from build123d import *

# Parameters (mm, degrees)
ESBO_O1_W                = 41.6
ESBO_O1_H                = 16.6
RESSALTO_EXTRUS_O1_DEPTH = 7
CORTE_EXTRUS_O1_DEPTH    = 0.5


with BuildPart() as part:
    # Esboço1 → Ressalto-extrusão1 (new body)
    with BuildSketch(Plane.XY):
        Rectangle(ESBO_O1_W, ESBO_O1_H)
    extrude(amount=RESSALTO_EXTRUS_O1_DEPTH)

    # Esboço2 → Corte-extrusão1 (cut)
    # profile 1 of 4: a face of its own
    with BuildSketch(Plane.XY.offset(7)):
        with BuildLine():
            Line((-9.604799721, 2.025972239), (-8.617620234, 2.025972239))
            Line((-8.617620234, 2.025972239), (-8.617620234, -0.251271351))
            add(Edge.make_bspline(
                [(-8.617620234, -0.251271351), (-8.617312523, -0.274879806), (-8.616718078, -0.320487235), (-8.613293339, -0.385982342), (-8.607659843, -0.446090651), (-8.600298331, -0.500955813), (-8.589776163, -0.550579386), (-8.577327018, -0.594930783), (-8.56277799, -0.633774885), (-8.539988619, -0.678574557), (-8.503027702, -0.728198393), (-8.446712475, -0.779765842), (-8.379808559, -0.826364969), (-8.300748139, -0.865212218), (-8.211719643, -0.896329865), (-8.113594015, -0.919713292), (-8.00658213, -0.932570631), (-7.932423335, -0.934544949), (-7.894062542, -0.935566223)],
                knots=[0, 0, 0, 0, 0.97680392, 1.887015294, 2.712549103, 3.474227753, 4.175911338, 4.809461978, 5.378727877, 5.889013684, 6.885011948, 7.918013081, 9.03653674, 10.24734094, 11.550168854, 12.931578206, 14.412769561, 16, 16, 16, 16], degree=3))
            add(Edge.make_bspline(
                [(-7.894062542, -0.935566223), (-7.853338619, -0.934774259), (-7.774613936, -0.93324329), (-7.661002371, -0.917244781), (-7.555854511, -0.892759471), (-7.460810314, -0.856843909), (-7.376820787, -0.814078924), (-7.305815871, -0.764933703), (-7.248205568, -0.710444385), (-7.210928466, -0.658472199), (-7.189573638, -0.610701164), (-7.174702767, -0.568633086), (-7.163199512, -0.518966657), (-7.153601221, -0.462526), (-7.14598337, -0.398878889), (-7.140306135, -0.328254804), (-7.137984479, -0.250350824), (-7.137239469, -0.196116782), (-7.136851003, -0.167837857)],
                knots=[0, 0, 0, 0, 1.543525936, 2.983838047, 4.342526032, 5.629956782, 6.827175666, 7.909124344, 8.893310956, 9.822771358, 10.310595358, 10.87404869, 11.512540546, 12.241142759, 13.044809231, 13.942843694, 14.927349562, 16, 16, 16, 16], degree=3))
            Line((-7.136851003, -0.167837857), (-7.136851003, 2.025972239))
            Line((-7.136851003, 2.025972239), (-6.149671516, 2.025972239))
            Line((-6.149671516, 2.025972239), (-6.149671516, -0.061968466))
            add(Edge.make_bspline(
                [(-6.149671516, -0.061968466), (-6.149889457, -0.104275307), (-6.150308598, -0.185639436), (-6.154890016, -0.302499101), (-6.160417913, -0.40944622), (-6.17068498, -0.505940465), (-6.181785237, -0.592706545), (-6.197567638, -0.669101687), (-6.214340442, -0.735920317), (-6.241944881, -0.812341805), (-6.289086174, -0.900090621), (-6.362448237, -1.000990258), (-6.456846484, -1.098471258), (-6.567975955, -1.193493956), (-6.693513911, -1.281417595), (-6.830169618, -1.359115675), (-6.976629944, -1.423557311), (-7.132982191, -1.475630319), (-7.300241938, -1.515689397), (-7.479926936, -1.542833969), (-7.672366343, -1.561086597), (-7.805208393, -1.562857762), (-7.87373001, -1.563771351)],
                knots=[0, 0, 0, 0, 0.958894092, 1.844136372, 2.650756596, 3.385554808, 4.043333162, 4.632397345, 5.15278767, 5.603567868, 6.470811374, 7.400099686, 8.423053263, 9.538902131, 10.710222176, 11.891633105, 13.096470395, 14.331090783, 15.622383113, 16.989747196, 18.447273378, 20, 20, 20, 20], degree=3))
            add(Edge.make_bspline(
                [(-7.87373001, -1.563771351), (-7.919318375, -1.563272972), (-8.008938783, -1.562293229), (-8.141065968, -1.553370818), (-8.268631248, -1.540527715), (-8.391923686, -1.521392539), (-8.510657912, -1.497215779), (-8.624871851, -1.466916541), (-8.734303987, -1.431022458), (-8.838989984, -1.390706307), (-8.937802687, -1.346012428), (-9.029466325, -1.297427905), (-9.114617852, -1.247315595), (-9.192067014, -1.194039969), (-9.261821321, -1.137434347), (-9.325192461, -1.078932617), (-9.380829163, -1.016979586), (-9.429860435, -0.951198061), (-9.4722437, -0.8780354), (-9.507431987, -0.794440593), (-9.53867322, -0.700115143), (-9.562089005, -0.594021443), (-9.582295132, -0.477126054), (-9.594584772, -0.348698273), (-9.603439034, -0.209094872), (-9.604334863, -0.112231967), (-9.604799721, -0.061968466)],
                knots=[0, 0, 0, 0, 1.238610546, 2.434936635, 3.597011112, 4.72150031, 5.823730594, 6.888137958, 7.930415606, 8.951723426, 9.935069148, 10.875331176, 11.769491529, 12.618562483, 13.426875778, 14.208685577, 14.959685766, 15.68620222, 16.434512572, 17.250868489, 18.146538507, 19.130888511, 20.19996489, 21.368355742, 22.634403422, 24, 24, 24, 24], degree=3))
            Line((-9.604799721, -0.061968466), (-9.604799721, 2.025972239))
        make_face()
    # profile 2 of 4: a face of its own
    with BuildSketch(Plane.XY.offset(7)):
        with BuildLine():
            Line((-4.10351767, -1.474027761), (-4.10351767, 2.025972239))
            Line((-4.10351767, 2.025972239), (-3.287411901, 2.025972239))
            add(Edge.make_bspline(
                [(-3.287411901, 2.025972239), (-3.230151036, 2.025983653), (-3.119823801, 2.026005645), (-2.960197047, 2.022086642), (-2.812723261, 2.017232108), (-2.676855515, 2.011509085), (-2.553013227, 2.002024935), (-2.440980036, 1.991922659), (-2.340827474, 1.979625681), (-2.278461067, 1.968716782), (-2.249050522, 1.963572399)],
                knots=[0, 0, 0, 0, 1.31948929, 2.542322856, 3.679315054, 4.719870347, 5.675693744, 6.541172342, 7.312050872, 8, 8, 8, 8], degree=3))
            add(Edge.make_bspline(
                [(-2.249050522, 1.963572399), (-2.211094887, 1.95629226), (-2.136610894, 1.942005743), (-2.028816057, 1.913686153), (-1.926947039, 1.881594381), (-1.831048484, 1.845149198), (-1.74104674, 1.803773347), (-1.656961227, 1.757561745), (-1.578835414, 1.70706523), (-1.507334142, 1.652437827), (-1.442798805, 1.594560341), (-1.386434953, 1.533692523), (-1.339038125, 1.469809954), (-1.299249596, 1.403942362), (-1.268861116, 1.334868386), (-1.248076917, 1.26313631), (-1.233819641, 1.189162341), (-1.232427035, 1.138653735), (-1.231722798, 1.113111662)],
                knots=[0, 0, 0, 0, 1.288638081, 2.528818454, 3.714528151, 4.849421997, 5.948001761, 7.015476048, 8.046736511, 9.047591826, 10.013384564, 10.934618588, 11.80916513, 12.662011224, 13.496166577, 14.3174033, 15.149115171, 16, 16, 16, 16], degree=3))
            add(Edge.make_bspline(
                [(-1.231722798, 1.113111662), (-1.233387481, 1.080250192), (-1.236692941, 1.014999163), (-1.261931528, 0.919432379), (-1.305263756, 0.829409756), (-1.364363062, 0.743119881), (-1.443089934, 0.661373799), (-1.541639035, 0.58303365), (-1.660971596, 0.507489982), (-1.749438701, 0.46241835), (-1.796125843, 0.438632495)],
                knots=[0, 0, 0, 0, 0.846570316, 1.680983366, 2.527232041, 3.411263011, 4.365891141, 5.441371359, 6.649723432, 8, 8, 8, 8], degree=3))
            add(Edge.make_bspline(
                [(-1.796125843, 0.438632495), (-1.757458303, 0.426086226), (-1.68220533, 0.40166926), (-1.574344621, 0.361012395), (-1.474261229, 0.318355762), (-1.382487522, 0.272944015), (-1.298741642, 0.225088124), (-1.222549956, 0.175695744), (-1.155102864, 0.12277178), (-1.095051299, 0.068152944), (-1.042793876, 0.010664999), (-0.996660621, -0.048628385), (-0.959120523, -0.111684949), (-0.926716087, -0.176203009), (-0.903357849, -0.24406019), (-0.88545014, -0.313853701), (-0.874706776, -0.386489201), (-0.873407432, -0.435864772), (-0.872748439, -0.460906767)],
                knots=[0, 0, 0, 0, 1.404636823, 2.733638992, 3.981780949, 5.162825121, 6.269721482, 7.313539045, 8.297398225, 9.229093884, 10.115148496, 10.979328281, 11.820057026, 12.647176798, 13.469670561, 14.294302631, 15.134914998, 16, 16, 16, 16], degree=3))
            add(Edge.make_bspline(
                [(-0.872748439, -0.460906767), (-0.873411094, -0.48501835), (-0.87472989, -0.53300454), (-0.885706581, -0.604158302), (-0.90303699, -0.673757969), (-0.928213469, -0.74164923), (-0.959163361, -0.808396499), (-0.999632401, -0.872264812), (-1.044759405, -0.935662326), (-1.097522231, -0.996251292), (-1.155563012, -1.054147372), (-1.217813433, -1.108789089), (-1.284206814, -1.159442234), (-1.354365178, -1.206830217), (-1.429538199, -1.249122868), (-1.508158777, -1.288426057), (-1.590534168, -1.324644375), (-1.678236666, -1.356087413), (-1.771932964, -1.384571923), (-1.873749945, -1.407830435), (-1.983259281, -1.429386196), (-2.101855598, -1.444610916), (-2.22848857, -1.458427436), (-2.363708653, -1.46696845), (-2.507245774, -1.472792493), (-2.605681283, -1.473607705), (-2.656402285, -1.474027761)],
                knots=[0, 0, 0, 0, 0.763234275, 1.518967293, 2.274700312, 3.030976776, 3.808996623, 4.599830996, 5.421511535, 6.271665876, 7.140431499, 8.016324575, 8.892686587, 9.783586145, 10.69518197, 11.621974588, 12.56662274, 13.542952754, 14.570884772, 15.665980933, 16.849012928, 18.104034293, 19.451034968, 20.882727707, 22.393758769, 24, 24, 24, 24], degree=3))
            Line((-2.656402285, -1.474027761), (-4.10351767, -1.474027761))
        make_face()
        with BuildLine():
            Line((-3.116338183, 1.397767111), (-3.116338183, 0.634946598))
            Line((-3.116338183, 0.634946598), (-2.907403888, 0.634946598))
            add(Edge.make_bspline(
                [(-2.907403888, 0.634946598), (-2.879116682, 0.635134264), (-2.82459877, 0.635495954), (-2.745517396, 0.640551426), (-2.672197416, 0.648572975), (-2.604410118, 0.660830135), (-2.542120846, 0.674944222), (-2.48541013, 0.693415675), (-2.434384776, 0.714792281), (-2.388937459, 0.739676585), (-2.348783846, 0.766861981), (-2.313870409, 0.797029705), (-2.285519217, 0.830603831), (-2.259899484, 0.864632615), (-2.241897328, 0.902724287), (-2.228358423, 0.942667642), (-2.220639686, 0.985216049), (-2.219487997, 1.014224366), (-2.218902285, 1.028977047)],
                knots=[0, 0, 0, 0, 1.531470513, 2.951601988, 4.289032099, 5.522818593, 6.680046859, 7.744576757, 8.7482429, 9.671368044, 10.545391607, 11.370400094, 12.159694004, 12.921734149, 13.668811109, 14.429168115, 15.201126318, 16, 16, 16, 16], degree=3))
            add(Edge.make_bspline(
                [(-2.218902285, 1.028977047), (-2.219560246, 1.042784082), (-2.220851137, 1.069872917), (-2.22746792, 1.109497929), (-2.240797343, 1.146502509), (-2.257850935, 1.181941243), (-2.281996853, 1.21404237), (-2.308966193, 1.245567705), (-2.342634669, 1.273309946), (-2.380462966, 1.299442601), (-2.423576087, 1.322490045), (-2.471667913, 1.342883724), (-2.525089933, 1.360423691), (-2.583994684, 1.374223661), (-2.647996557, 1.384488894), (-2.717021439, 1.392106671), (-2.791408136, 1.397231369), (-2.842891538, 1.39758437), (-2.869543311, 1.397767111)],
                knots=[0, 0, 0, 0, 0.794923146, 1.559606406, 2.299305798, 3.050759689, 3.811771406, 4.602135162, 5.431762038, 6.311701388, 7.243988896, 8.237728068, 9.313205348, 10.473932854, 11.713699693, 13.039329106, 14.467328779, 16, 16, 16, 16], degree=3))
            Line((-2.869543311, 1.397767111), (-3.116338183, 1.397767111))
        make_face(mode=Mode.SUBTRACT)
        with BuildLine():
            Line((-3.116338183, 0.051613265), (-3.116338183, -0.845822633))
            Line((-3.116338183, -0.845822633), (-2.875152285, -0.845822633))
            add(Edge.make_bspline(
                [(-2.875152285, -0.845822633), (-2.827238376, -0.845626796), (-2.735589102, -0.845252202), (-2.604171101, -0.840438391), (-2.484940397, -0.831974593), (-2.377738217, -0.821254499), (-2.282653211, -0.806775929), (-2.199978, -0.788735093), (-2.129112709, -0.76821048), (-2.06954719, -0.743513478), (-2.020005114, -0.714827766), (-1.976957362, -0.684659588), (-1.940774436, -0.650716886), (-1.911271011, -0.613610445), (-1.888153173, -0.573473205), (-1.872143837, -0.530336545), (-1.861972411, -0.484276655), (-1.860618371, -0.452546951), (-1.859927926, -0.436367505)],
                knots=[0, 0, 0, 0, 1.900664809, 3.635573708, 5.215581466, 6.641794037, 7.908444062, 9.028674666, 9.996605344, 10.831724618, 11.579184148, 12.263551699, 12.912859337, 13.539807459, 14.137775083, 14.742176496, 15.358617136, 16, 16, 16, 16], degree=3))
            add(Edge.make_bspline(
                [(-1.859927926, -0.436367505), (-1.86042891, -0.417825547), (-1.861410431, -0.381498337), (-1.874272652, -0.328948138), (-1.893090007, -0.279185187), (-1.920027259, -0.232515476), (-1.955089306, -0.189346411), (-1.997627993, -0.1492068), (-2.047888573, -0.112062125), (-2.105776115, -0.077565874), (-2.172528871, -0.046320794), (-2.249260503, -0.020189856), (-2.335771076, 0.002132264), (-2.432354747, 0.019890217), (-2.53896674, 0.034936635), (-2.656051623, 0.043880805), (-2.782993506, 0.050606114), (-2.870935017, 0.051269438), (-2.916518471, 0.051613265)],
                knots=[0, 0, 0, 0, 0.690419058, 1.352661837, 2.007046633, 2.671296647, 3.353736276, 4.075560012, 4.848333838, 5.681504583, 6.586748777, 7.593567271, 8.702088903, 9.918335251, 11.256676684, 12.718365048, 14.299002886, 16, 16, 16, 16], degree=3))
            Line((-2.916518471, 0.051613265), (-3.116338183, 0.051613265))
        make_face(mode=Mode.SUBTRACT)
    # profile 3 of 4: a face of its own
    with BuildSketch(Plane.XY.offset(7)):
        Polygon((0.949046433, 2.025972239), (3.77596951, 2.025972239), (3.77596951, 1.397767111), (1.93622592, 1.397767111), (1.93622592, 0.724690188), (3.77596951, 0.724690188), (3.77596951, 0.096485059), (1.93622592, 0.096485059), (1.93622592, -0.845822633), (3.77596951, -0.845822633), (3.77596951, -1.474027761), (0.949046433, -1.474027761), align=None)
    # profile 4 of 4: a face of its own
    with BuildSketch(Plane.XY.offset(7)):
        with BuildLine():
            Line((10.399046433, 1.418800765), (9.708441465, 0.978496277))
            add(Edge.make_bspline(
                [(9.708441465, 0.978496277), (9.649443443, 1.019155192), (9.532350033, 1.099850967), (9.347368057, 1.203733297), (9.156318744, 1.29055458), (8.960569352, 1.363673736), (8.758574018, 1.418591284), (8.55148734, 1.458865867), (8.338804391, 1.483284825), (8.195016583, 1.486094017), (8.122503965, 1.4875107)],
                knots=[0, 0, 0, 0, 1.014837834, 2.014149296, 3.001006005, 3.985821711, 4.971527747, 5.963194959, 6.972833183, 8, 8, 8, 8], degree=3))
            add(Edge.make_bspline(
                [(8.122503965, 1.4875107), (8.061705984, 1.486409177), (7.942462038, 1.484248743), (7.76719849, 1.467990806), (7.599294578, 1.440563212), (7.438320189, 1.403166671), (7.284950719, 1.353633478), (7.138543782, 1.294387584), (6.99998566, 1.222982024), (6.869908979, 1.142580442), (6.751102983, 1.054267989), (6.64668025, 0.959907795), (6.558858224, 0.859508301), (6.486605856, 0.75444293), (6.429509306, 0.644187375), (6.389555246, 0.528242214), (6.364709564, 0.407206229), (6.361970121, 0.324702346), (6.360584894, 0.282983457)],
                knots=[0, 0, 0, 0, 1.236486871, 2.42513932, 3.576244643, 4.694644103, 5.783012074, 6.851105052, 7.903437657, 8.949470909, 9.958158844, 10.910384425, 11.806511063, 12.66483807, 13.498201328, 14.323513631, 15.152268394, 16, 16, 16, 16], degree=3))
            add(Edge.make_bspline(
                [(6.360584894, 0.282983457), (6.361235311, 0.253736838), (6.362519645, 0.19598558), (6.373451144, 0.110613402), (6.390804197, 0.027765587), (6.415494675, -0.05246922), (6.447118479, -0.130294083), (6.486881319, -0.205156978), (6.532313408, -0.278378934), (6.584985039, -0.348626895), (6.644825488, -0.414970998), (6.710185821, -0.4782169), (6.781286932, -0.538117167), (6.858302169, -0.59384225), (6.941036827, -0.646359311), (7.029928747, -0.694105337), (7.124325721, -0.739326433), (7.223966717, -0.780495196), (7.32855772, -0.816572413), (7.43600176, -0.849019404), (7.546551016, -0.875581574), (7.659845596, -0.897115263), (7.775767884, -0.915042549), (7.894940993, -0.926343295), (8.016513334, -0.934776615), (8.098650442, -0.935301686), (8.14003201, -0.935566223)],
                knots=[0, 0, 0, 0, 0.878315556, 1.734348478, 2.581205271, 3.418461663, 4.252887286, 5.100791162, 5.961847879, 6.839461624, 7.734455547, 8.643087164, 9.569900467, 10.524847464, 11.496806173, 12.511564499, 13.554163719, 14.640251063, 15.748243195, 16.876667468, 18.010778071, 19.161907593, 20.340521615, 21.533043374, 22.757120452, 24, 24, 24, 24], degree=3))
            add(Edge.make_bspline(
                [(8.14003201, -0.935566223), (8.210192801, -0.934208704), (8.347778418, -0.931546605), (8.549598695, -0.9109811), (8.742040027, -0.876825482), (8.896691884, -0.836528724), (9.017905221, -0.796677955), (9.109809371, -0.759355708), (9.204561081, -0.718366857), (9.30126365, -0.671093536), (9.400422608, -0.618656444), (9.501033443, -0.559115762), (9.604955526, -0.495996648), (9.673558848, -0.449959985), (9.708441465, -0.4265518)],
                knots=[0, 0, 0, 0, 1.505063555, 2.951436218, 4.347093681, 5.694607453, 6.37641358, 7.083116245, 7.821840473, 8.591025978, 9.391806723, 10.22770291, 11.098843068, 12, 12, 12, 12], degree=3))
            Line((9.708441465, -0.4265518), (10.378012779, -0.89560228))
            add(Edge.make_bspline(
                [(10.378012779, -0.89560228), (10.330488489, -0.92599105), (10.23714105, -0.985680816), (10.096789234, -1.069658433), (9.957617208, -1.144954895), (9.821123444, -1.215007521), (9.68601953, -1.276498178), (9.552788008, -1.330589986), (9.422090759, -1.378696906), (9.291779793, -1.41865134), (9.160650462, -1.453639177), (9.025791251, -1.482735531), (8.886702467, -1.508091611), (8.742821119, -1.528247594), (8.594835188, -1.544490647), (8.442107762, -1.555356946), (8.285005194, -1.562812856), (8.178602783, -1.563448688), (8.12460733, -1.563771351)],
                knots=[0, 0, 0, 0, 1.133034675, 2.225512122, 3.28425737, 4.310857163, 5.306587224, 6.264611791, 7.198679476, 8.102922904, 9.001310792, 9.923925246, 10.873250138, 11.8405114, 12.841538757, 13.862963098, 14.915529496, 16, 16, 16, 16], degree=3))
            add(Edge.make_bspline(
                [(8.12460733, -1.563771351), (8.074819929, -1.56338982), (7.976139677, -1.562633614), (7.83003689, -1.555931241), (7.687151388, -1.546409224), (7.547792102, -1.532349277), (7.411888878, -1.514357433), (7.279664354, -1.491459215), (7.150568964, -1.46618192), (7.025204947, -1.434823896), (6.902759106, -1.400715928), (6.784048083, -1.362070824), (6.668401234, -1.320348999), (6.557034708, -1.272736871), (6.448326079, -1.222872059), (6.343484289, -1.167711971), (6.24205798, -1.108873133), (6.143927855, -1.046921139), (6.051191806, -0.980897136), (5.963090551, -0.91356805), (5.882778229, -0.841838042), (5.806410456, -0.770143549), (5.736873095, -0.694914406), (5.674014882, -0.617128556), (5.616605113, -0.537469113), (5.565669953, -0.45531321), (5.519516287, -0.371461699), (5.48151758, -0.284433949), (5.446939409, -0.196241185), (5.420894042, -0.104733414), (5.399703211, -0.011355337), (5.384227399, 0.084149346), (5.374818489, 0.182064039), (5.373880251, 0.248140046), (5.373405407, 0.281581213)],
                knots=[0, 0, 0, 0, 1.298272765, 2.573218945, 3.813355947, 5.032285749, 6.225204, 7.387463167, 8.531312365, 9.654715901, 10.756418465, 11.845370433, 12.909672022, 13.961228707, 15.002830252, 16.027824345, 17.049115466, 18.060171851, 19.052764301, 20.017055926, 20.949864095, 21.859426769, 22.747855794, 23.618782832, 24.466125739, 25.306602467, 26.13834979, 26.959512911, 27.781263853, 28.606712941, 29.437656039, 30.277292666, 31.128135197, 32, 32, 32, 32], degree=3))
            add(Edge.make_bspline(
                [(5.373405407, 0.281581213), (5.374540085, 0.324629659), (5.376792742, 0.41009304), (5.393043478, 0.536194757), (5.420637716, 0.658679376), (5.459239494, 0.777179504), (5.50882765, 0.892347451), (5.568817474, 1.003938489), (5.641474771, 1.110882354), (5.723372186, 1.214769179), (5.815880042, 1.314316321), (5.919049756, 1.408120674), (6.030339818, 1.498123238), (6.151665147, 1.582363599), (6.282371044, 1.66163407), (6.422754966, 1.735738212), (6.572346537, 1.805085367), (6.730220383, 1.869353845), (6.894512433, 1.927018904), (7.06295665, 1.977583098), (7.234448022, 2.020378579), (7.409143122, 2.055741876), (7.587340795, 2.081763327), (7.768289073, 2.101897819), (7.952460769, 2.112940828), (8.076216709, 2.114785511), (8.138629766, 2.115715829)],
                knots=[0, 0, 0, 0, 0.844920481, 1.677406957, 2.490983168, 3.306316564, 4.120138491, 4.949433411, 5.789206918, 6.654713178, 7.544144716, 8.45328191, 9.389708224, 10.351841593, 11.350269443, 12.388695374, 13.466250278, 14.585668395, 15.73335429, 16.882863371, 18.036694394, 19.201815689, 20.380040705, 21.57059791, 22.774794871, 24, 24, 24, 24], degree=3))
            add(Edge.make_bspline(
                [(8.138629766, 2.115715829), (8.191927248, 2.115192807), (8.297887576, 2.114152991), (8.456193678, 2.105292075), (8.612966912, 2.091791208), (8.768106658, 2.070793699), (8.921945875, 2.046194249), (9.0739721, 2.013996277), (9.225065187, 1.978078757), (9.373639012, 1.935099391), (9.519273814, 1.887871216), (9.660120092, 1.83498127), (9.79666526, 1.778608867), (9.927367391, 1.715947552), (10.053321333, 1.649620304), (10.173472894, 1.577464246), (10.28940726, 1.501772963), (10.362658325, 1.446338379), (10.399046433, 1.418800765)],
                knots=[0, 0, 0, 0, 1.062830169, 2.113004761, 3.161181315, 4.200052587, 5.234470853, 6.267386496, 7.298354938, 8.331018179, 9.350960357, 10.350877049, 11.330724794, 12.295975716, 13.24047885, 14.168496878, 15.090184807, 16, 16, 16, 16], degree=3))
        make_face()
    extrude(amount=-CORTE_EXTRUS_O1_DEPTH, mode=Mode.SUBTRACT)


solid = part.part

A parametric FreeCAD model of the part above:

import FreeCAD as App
import Part
import Sketcher

V = App.Vector
Q = App.Units.Quantity


def add_polygon(sketch, points):
    """Adds a closed chain of lines whose ends are joined by coincident constraints."""
    first, n = sketch.GeometryCount, len(points)
    for a, b in zip(points, points[1:] + points[:1]):
        sketch.addGeometry(Part.LineSegment(App.Vector(*a, 0), App.Vector(*b, 0)), False)
    for i in range(n):
        sketch.addConstraint(Sketcher.Constraint("Coincident", first + i, 2, first + (i + 1) % n, 1))

doc = App.newDocument("Part")
params = doc.addObject("Spreadsheet::Sheet", "Params")
for row, (alias, value) in enumerate([
    ("sketch1_width", "41.6 mm"),
    ("sketch1_height", "16.6 mm"),
    ("pad1_length", "7 mm"),
    ("sketch2_height", "3.5 mm"),
    ("pocket1_length", "0.5 mm"),
], start=1):
    params.set(f"A{row}", alias)
    params.set(f"B{row}", "=" + value)
    params.setAlias(f"B{row}", alias)

body = doc.addObject("PartDesign::Body", "Body")

sketch1 = doc.addObject("Sketcher::SketchObject", "Sketch")
body.addObject(sketch1)
sketch1.AttachmentSupport = (doc.XY_Plane, [""])
sketch1.MapMode = "FlatFace"
add_polygon(sketch1, [(-21, 8), (-21, -8), (21, -8), (21, 8)])
sketch1.addConstraint(Sketcher.Constraint("Vertical", 0))
sketch1.addConstraint(Sketcher.Constraint("Horizontal", 1))
sketch1.addConstraint(Sketcher.Constraint("Vertical", 2))
sketch1.addConstraint(Sketcher.Constraint("Horizontal", 3))
sketch1.addConstraint(Sketcher.Constraint("Symmetric", 0, 2, 2, 2, -1, 1))
sketch1.addConstraint(Sketcher.Constraint("DistanceX", 1, 1, 1, 2, Q("41.6 mm")))
sketch1.addConstraint(Sketcher.Constraint("DistanceY", 0, 2, 0, 1, Q("16.6 mm")))
sketch1.setExpression("Constraints[9]", "Params.sketch1_width")
sketch1.setExpression("Constraints[10]", "Params.sketch1_height")
pad1 = doc.addObject("PartDesign::Pad", "Pad")
body.addObject(pad1)
pad1.Profile = sketch1
pad1.setExpression("Length", "Params.pad1_length")

sketch2 = doc.addObject("Sketcher::SketchObject", "Sketch001")
body.addObject(sketch2)
sketch2.AttachmentSupport = (doc.XY_Plane, [""])
sketch2.MapMode = "FlatFace"
sketch2.AttachmentOffset = App.Placement(V(0, 0, 7), App.Rotation())
sketch2.addGeometry(Part.LineSegment(V(-8.61762, 2.025972, 0), V(-9.6048, 2.025972, 0)), False)
sketch2.addGeometry(Part.LineSegment(V(-9.6048, 2.025972, 0), V(-9.6048, -0.061968, 0)), False)
sketch2.addGeometry(Part.BSplineCurve([V(-7.87373, -1.563771, 0), V(-7.919318, -1.563273, 0), V(-8.008939, -1.562293, 0), V(-8.141066, -1.553371, 0), V(-8.268631, -1.540528, 0), V(-8.391924, -1.521393, 0), V(-8.510658, -1.497216, 0), V(-8.624872, -1.466917, 0), V(-8.734304, -1.431022, 0), V(-8.83899, -1.390706, 0), V(-8.937803, -1.346012, 0), V(-9.029466, -1.297428, 0), V(-9.114618, -1.247316, 0), V(-9.192067, -1.19404, 0), V(-9.261821, -1.137434, 0), V(-9.325192, -1.078933, 0), V(-9.380829, -1.01698, 0), V(-9.42986, -0.951198, 0), V(-9.472244, -0.878035, 0), V(-9.507432, -0.794441, 0), V(-9.538673, -0.700115, 0), V(-9.562089, -0.594021, 0), V(-9.582295, -0.477126, 0), V(-9.594585, -0.348698, 0), V(-9.603439, -0.209095, 0), V(-9.604335, -0.112232, 0), V(-9.6048, -0.061968, 0)], [4, 1, 1, 1, 1, 1, 1, 1, 1, 1, 1, 1, 1, 1, 1, 1, 1, 1, 1, 1, 1, 1, 1, 1, 4], [0, 1.238610546, 2.434936635, 3.597011112, 4.72150031, 5.823730594, 6.888137958, 7.930415606, 8.951723426, 9.935069148, 10.875331176, 11.769491529, 12.618562483, 13.426875778, 14.208685577, 14.959685766, 15.68620222, 16.434512572, 17.250868489, 18.146538507, 19.130888511, 20.19996489, 21.368355742, 22.634403422, 24], False, 3, [1, 1, 1, 1, 1, 1, 1, 1, 1, 1, 1, 1, 1, 1, 1, 1, 1, 1, 1, 1, 1, 1, 1, 1, 1, 1, 1], False), False)
sketch2.addGeometry(Part.BSplineCurve([V(-6.149672, -0.061968, 0), V(-6.149889, -0.104275, 0), V(-6.150309, -0.185639, 0), V(-6.15489, -0.302499, 0), V(-6.160418, -0.409446, 0), V(-6.170685, -0.50594, 0), V(-6.181785, -0.592707, 0), V(-6.197568, -0.669102, 0), V(-6.21434, -0.73592, 0), V(-6.241945, -0.812342, 0), V(-6.289086, -0.900091, 0), V(-6.362448, -1.00099, 0), V(-6.456846, -1.098471, 0), V(-6.567976, -1.193494, 0), V(-6.693514, -1.281418, 0), V(-6.83017, -1.359116, 0), V(-6.97663, -1.423557, 0), V(-7.132982, -1.47563, 0), V(-7.300242, -1.515689, 0), V(-7.479927, -1.542834, 0), V(-7.672366, -1.561087, 0), V(-7.805208, -1.562858, 0), V(-7.87373, -1.563771, 0)], [4, 1, 1, 1, 1, 1, 1, 1, 1, 1, 1, 1, 1, 1, 1, 1, 1, 1, 1, 1, 4], [0, 0.958894092, 1.844136372, 2.650756596, 3.385554808, 4.043333162, 4.632397345, 5.15278767, 5.603567868, 6.470811374, 7.400099686, 8.423053263, 9.538902131, 10.710222176, 11.891633105, 13.096470395, 14.331090783, 15.622383113, 16.989747196, 18.447273378, 20], False, 3, [1, 1, 1, 1, 1, 1, 1, 1, 1, 1, 1, 1, 1, 1, 1, 1, 1, 1, 1, 1, 1, 1, 1], False), False)
sketch2.addGeometry(Part.LineSegment(V(-6.149672, -0.061968, 0), V(-6.149672, 2.025972, 0)), False)
sketch2.addGeometry(Part.LineSegment(V(-6.149672, 2.025972, 0), V(-7.136851, 2.025972, 0)), False)
sketch2.addGeometry(Part.LineSegment(V(-7.136851, 2.025972, 0), V(-7.136851, -0.167838, 0)), False)
sketch2.addGeometry(Part.BSplineCurve([V(-7.894063, -0.935566, 0), V(-7.853339, -0.934774, 0), V(-7.774614, -0.933243, 0), V(-7.661002, -0.917245, 0), V(-7.555855, -0.892759, 0), V(-7.46081, -0.856844, 0), V(-7.376821, -0.814079, 0), V(-7.305816, -0.764934, 0), V(-7.248206, -0.710444, 0), V(-7.210928, -0.658472, 0), V(-7.189574, -0.610701, 0), V(-7.174703, -0.568633, 0), V(-7.1632, -0.518967, 0), V(-7.153601, -0.462526, 0), V(-7.145983, -0.398879, 0), V(-7.140306, -0.328255, 0), V(-7.137984, -0.250351, 0), V(-7.137239, -0.196117, 0), V(-7.136851, -0.167838, 0)], [4, 1, 1, 1, 1, 1, 1, 1, 1, 1, 1, 1, 1, 1, 1, 1, 4], [0, 1.543525936, 2.983838047, 4.342526032, 5.629956782, 6.827175666, 7.909124344, 8.893310956, 9.822771358, 10.310595358, 10.87404869, 11.512540546, 12.241142759, 13.044809231, 13.942843694, 14.927349562, 16], False, 3, [1, 1, 1, 1, 1, 1, 1, 1, 1, 1, 1, 1, 1, 1, 1, 1, 1, 1, 1], False), False)
sketch2.addGeometry(Part.BSplineCurve([V(-8.61762, -0.251271, 0), V(-8.617313, -0.27488, 0), V(-8.616718, -0.320487, 0), V(-8.613293, -0.385982, 0), V(-8.60766, -0.446091, 0), V(-8.600298, -0.500956, 0), V(-8.589776, -0.550579, 0), V(-8.577327, -0.594931, 0), V(-8.562778, -0.633775, 0), V(-8.539989, -0.678575, 0), V(-8.503028, -0.728198, 0), V(-8.446712, -0.779766, 0), V(-8.379809, -0.826365, 0), V(-8.300748, -0.865212, 0), V(-8.21172, -0.89633, 0), V(-8.113594, -0.919713, 0), V(-8.006582, -0.932571, 0), V(-7.932423, -0.934545, 0), V(-7.894063, -0.935566, 0)], [4, 1, 1, 1, 1, 1, 1, 1, 1, 1, 1, 1, 1, 1, 1, 1, 4], [0, 0.97680392, 1.887015294, 2.712549103, 3.474227753, 4.175911338, 4.809461978, 5.378727877, 5.889013684, 6.885011948, 7.918013081, 9.03653674, 10.24734094, 11.550168854, 12.931578206, 14.412769561, 16], False, 3, [1, 1, 1, 1, 1, 1, 1, 1, 1, 1, 1, 1, 1, 1, 1, 1, 1, 1, 1], False), False)
sketch2.addGeometry(Part.LineSegment(V(-8.61762, -0.251271, 0), V(-8.61762, 2.025972, 0)), False)
sketch2.addGeometry(Part.LineSegment(V(-4.103518, 2.025972, 0), V(-4.103518, -1.474028, 0)), False)
sketch2.addGeometry(Part.LineSegment(V(-4.103518, -1.474028, 0), V(-2.656402, -1.474028, 0)), False)
sketch2.addGeometry(Part.BSplineCurve([V(-0.872748, -0.460907, 0), V(-0.873411, -0.485018, 0), V(-0.87473, -0.533005, 0), V(-0.885707, -0.604158, 0), V(-0.903037, -0.673758, 0), V(-0.928213, -0.741649, 0), V(-0.959163, -0.808396, 0), V(-0.999632, -0.872265, 0), V(-1.044759, -0.935662, 0), V(-1.097522, -0.996251, 0), V(-1.155563, -1.054147, 0), V(-1.217813, -1.108789, 0), V(-1.284207, -1.159442, 0), V(-1.354365, -1.20683, 0), V(-1.429538, -1.249123, 0), V(-1.508159, -1.288426, 0), V(-1.590534, -1.324644, 0), V(-1.678237, -1.356087, 0), V(-1.771933, -1.384572, 0), V(-1.87375, -1.40783, 0), V(-1.983259, -1.429386, 0), V(-2.101856, -1.444611, 0), V(-2.228489, -1.458427, 0), V(-2.363709, -1.466968, 0), V(-2.507246, -1.472792, 0), V(-2.605681, -1.473608, 0), V(-2.656402, -1.474028, 0)], [4, 1, 1, 1, 1, 1, 1, 1, 1, 1, 1, 1, 1, 1, 1, 1, 1, 1, 1, 1, 1, 1, 1, 1, 4], [0, 0.763234275, 1.518967293, 2.274700312, 3.030976776, 3.808996623, 4.599830996, 5.421511535, 6.271665876, 7.140431499, 8.016324575, 8.892686587, 9.783586145, 10.69518197, 11.621974588, 12.56662274, 13.542952754, 14.570884772, 15.665980933, 16.849012928, 18.104034293, 19.451034968, 20.882727707, 22.393758769, 24], False, 3, [1, 1, 1, 1, 1, 1, 1, 1, 1, 1, 1, 1, 1, 1, 1, 1, 1, 1, 1, 1, 1, 1, 1, 1, 1, 1, 1], False), False)
sketch2.addGeometry(Part.BSplineCurve([V(-1.796126, 0.438632, 0), V(-1.757458, 0.426086, 0), V(-1.682205, 0.401669, 0), V(-1.574345, 0.361012, 0), V(-1.474261, 0.318356, 0), V(-1.382488, 0.272944, 0), V(-1.298742, 0.225088, 0), V(-1.22255, 0.175696, 0), V(-1.155103, 0.122772, 0), V(-1.095051, 0.068153, 0), V(-1.042794, 0.010665, 0), V(-0.996661, -0.048628, 0), V(-0.959121, -0.111685, 0), V(-0.926716, -0.176203, 0), V(-0.903358, -0.24406, 0), V(-0.88545, -0.313854, 0), V(-0.874707, -0.386489, 0), V(-0.873407, -0.435865, 0), V(-0.872748, -0.460907, 0)], [4, 1, 1, 1, 1, 1, 1, 1, 1, 1, 1, 1, 1, 1, 1, 1, 4], [0, 1.404636823, 2.733638992, 3.981780949, 5.162825121, 6.269721482, 7.313539045, 8.297398225, 9.229093884, 10.115148496, 10.979328281, 11.820057026, 12.647176798, 13.469670561, 14.294302631, 15.134914998, 16], False, 3, [1, 1, 1, 1, 1, 1, 1, 1, 1, 1, 1, 1, 1, 1, 1, 1, 1, 1, 1], False), False)
sketch2.addGeometry(Part.BSplineCurve([V(-1.231723, 1.113112, 0), V(-1.233387, 1.08025, 0), V(-1.236693, 1.014999, 0), V(-1.261932, 0.919432, 0), V(-1.305264, 0.82941, 0), V(-1.364363, 0.74312, 0), V(-1.44309, 0.661374, 0), V(-1.541639, 0.583034, 0), V(-1.660972, 0.50749, 0), V(-1.749439, 0.462418, 0), V(-1.796126, 0.438632, 0)], [4, 1, 1, 1, 1, 1, 1, 1, 4], [0, 0.846570316, 1.680983366, 2.527232041, 3.411263011, 4.365891141, 5.441371359, 6.649723432, 8], False, 3, [1, 1, 1, 1, 1, 1, 1, 1, 1, 1, 1], False), False)
sketch2.addGeometry(Part.BSplineCurve([V(-2.249051, 1.963572, 0), V(-2.211095, 1.956292, 0), V(-2.136611, 1.942006, 0), V(-2.028816, 1.913686, 0), V(-1.926947, 1.881594, 0), V(-1.831048, 1.845149, 0), V(-1.741047, 1.803773, 0), V(-1.656961, 1.757562, 0), V(-1.578835, 1.707065, 0), V(-1.507334, 1.652438, 0), V(-1.442799, 1.59456, 0), V(-1.386435, 1.533693, 0), V(-1.339038, 1.46981, 0), V(-1.29925, 1.403942, 0), V(-1.268861, 1.334868, 0), V(-1.248077, 1.263136, 0), V(-1.23382, 1.189162, 0), V(-1.232427, 1.138654, 0), V(-1.231723, 1.113112, 0)], [4, 1, 1, 1, 1, 1, 1, 1, 1, 1, 1, 1, 1, 1, 1, 1, 4], [0, 1.288638081, 2.528818454, 3.714528151, 4.849421997, 5.948001761, 7.015476048, 8.046736511, 9.047591826, 10.013384564, 10.934618588, 11.80916513, 12.662011224, 13.496166577, 14.3174033, 15.149115171, 16], False, 3, [1, 1, 1, 1, 1, 1, 1, 1, 1, 1, 1, 1, 1, 1, 1, 1, 1, 1, 1], False), False)
sketch2.addGeometry(Part.BSplineCurve([V(-3.287412, 2.025972, 0), V(-3.230151, 2.025984, 0), V(-3.119824, 2.026006, 0), V(-2.960197, 2.022087, 0), V(-2.812723, 2.017232, 0), V(-2.676856, 2.011509, 0), V(-2.553013, 2.002025, 0), V(-2.44098, 1.991923, 0), V(-2.340827, 1.979626, 0), V(-2.278461, 1.968717, 0), V(-2.249051, 1.963572, 0)], [4, 1, 1, 1, 1, 1, 1, 1, 4], [0, 1.31948929, 2.542322856, 3.679315054, 4.719870347, 5.675693744, 6.541172342, 7.312050872, 8], False, 3, [1, 1, 1, 1, 1, 1, 1, 1, 1, 1, 1], False), False)
sketch2.addGeometry(Part.LineSegment(V(-3.287412, 2.025972, 0), V(-4.103518, 2.025972, 0)), False)
sketch2.addGeometry(Part.LineSegment(V(-3.116338, 0.051613, 0), V(-2.916518, 0.051613, 0)), False)
sketch2.addGeometry(Part.BSplineCurve([V(-1.859928, -0.436368, 0), V(-1.860429, -0.417826, 0), V(-1.86141, -0.381498, 0), V(-1.874273, -0.328948, 0), V(-1.89309, -0.279185, 0), V(-1.920027, -0.232515, 0), V(-1.955089, -0.189346, 0), V(-1.997628, -0.149207, 0), V(-2.047889, -0.112062, 0), V(-2.105776, -0.077566, 0), V(-2.172529, -0.046321, 0), V(-2.249261, -0.02019, 0), V(-2.335771, 0.002132, 0), V(-2.432355, 0.01989, 0), V(-2.538967, 0.034937, 0), V(-2.656052, 0.043881, 0), V(-2.782994, 0.050606, 0), V(-2.870935, 0.051269, 0), V(-2.916518, 0.051613, 0)], [4, 1, 1, 1, 1, 1, 1, 1, 1, 1, 1, 1, 1, 1, 1, 1, 4], [0, 0.690419058, 1.352661837, 2.007046633, 2.671296647, 3.353736276, 4.075560012, 4.848333838, 5.681504583, 6.586748777, 7.593567271, 8.702088903, 9.918335251, 11.256676684, 12.718365048, 14.299002886, 16], False, 3, [1, 1, 1, 1, 1, 1, 1, 1, 1, 1, 1, 1, 1, 1, 1, 1, 1, 1, 1], False), False)
sketch2.addGeometry(Part.BSplineCurve([V(-2.875152, -0.845823, 0), V(-2.827238, -0.845627, 0), V(-2.735589, -0.845252, 0), V(-2.604171, -0.840438, 0), V(-2.48494, -0.831975, 0), V(-2.377738, -0.821254, 0), V(-2.282653, -0.806776, 0), V(-2.199978, -0.788735, 0), V(-2.129113, -0.76821, 0), V(-2.069547, -0.743513, 0), V(-2.020005, -0.714828, 0), V(-1.976957, -0.68466, 0), V(-1.940774, -0.650717, 0), V(-1.911271, -0.61361, 0), V(-1.888153, -0.573473, 0), V(-1.872144, -0.530337, 0), V(-1.861972, -0.484277, 0), V(-1.860618, -0.452547, 0), V(-1.859928, -0.436368, 0)], [4, 1, 1, 1, 1, 1, 1, 1, 1, 1, 1, 1, 1, 1, 1, 1, 4], [0, 1.900664809, 3.635573708, 5.215581466, 6.641794037, 7.908444062, 9.028674666, 9.996605344, 10.831724618, 11.579184148, 12.263551699, 12.912859337, 13.539807459, 14.137775083, 14.742176496, 15.358617136, 16], False, 3, [1, 1, 1, 1, 1, 1, 1, 1, 1, 1, 1, 1, 1, 1, 1, 1, 1, 1, 1], False), False)
sketch2.addGeometry(Part.LineSegment(V(-2.875152, -0.845823, 0), V(-3.116338, -0.845823, 0)), False)
sketch2.addGeometry(Part.LineSegment(V(-3.116338, -0.845823, 0), V(-3.116338, 0.051613, 0)), False)
sketch2.addGeometry(Part.LineSegment(V(-3.116338, 1.397767, 0), V(-2.869543, 1.397767, 0)), False)
sketch2.addGeometry(Part.BSplineCurve([V(-2.218902, 1.028977, 0), V(-2.21956, 1.042784, 0), V(-2.220851, 1.069873, 0), V(-2.227468, 1.109498, 0), V(-2.240797, 1.146503, 0), V(-2.257851, 1.181941, 0), V(-2.281997, 1.214042, 0), V(-2.308966, 1.245568, 0), V(-2.342635, 1.27331, 0), V(-2.380463, 1.299443, 0), V(-2.423576, 1.32249, 0), V(-2.471668, 1.342884, 0), V(-2.52509, 1.360424, 0), V(-2.583995, 1.374224, 0), V(-2.647997, 1.384489, 0), V(-2.717021, 1.392107, 0), V(-2.791408, 1.397231, 0), V(-2.842892, 1.397584, 0), V(-2.869543, 1.397767, 0)], [4, 1, 1, 1, 1, 1, 1, 1, 1, 1, 1, 1, 1, 1, 1, 1, 4], [0, 0.794923146, 1.559606406, 2.299305798, 3.050759689, 3.811771406, 4.602135162, 5.431762038, 6.311701388, 7.243988896, 8.237728068, 9.313205348, 10.473932854, 11.713699693, 13.039329106, 14.467328779, 16], False, 3, [1, 1, 1, 1, 1, 1, 1, 1, 1, 1, 1, 1, 1, 1, 1, 1, 1, 1, 1], False), False)
sketch2.addGeometry(Part.BSplineCurve([V(-2.907404, 0.634947, 0), V(-2.879117, 0.635134, 0), V(-2.824599, 0.635496, 0), V(-2.745517, 0.640551, 0), V(-2.672197, 0.648573, 0), V(-2.60441, 0.66083, 0), V(-2.542121, 0.674944, 0), V(-2.48541, 0.693416, 0), V(-2.434385, 0.714792, 0), V(-2.388937, 0.739677, 0), V(-2.348784, 0.766862, 0), V(-2.31387, 0.79703, 0), V(-2.285519, 0.830604, 0), V(-2.259899, 0.864633, 0), V(-2.241897, 0.902724, 0), V(-2.228358, 0.942668, 0), V(-2.22064, 0.985216, 0), V(-2.219488, 1.014224, 0), V(-2.218902, 1.028977, 0)], [4, 1, 1, 1, 1, 1, 1, 1, 1, 1, 1, 1, 1, 1, 1, 1, 4], [0, 1.531470513, 2.951601988, 4.289032099, 5.522818593, 6.680046859, 7.744576757, 8.7482429, 9.671368044, 10.545391607, 11.370400094, 12.159694004, 12.921734149, 13.668811109, 14.429168115, 15.201126318, 16], False, 3, [1, 1, 1, 1, 1, 1, 1, 1, 1, 1, 1, 1, 1, 1, 1, 1, 1, 1, 1], False), False)
sketch2.addGeometry(Part.LineSegment(V(-2.907404, 0.634947, 0), V(-3.116338, 0.634947, 0)), False)
sketch2.addGeometry(Part.LineSegment(V(-3.116338, 0.634947, 0), V(-3.116338, 1.397767, 0)), False)
add_polygon(sketch2, [(3.77597, 2.025972), (0.949046, 2.025972), (0.949046, -1.474028), (3.77597, -1.474028), (3.77597, -0.845823), (1.936226, -0.845823), (1.936226, 0.096485), (3.77597, 0.096485), (3.77597, 0.72469), (1.936226, 0.72469), (1.936226, 1.397767), (3.77597, 1.397767)])
sketch2.addGeometry(Part.LineSegment(V(9.708441, 0.978496, 0), V(10.399046, 1.418801, 0)), False)
sketch2.addGeometry(Part.BSplineCurve([V(8.13863, 2.115716, 0), V(8.191927, 2.115193, 0), V(8.297888, 2.114153, 0), V(8.456194, 2.105292, 0), V(8.612967, 2.091791, 0), V(8.768107, 2.070794, 0), V(8.921946, 2.046194, 0), V(9.073972, 2.013996, 0), V(9.225065, 1.978079, 0), V(9.373639, 1.935099, 0), V(9.519274, 1.887871, 0), V(9.66012, 1.834981, 0), V(9.796665, 1.778609, 0), V(9.927367, 1.715948, 0), V(10.053321, 1.64962, 0), V(10.173473, 1.577464, 0), V(10.289407, 1.501773, 0), V(10.362658, 1.446338, 0), V(10.399046, 1.418801, 0)], [4, 1, 1, 1, 1, 1, 1, 1, 1, 1, 1, 1, 1, 1, 1, 1, 4], [0, 1.062830169, 2.113004761, 3.161181315, 4.200052587, 5.234470853, 6.267386496, 7.298354938, 8.331018179, 9.350960357, 10.350877049, 11.330724794, 12.295975716, 13.24047885, 14.168496878, 15.090184807, 16], False, 3, [1, 1, 1, 1, 1, 1, 1, 1, 1, 1, 1, 1, 1, 1, 1, 1, 1, 1, 1], False), False)
sketch2.addGeometry(Part.BSplineCurve([V(5.373405, 0.281581, 0), V(5.37454, 0.32463, 0), V(5.376793, 0.410093, 0), V(5.393043, 0.536195, 0), V(5.420638, 0.658679, 0), V(5.459239, 0.77718, 0), V(5.508828, 0.892347, 0), V(5.568817, 1.003938, 0), V(5.641475, 1.110882, 0), V(5.723372, 1.214769, 0), V(5.81588, 1.314316, 0), V(5.91905, 1.408121, 0), V(6.03034, 1.498123, 0), V(6.151665, 1.582364, 0), V(6.282371, 1.661634, 0), V(6.422755, 1.735738, 0), V(6.572347, 1.805085, 0), V(6.73022, 1.869354, 0), V(6.894512, 1.927019, 0), V(7.062957, 1.977583, 0), V(7.234448, 2.020379, 0), V(7.409143, 2.055742, 0), V(7.587341, 2.081763, 0), V(7.768289, 2.101898, 0), V(7.952461, 2.112941, 0), V(8.076217, 2.114786, 0), V(8.13863, 2.115716, 0)], [4, 1, 1, 1, 1, 1, 1, 1, 1, 1, 1, 1, 1, 1, 1, 1, 1, 1, 1, 1, 1, 1, 1, 1, 4], [0, 0.844920481, 1.677406957, 2.490983168, 3.306316564, 4.120138491, 4.949433411, 5.789206918, 6.654713178, 7.544144716, 8.45328191, 9.389708224, 10.351841593, 11.350269443, 12.388695374, 13.466250278, 14.585668395, 15.73335429, 16.882863371, 18.036694394, 19.201815689, 20.380040705, 21.57059791, 22.774794871, 24], False, 3, [1, 1, 1, 1, 1, 1, 1, 1, 1, 1, 1, 1, 1, 1, 1, 1, 1, 1, 1, 1, 1, 1, 1, 1, 1, 1, 1], False), False)
sketch2.addGeometry(Part.BSplineCurve([V(8.124607, -1.563771, 0), V(8.07482, -1.56339, 0), V(7.97614, -1.562634, 0), V(7.830037, -1.555931, 0), V(7.687151, -1.546409, 0), V(7.547792, -1.532349, 0), V(7.411889, -1.514357, 0), V(7.279664, -1.491459, 0), V(7.150569, -1.466182, 0), V(7.025205, -1.434824, 0), V(6.902759, -1.400716, 0), V(6.784048, -1.362071, 0), V(6.668401, -1.320349, 0), V(6.557035, -1.272737, 0), V(6.448326, -1.222872, 0), V(6.343484, -1.167712, 0), V(6.242058, -1.108873, 0), V(6.143928, -1.046921, 0), V(6.051192, -0.980897, 0), V(5.963091, -0.913568, 0), V(5.882778, -0.841838, 0), V(5.80641, -0.770144, 0), V(5.736873, -0.694914, 0), V(5.674015, -0.617129, 0), V(5.616605, -0.537469, 0), V(5.56567, -0.455313, 0), V(5.519516, -0.371462, 0), V(5.481518, -0.284434, 0), V(5.446939, -0.196241, 0), V(5.420894, -0.104733, 0), V(5.399703, -0.011355, 0), V(5.384227, 0.084149, 0), V(5.374818, 0.182064, 0), V(5.37388, 0.24814, 0), V(5.373405, 0.281581, 0)], [4, 1, 1, 1, 1, 1, 1, 1, 1, 1, 1, 1, 1, 1, 1, 1, 1, 1, 1, 1, 1, 1, 1, 1, 1, 1, 1, 1, 1, 1, 1, 1, 4], [0, 1.298272765, 2.573218945, 3.813355947, 5.032285749, 6.225204, 7.387463167, 8.531312365, 9.654715901, 10.756418465, 11.845370433, 12.909672022, 13.961228707, 15.002830252, 16.027824345, 17.049115466, 18.060171851, 19.052764301, 20.017055926, 20.949864095, 21.859426769, 22.747855794, 23.618782832, 24.466125739, 25.306602467, 26.13834979, 26.959512911, 27.781263853, 28.606712941, 29.437656039, 30.277292666, 31.128135197, 32], False, 3, [1, 1, 1, 1, 1, 1, 1, 1, 1, 1, 1, 1, 1, 1, 1, 1, 1, 1, 1, 1, 1, 1, 1, 1, 1, 1, 1, 1, 1, 1, 1, 1, 1, 1, 1], False), False)
sketch2.addGeometry(Part.BSplineCurve([V(10.378013, -0.895602, 0), V(10.330488, -0.925991, 0), V(10.237141, -0.985681, 0), V(10.096789, -1.069658, 0), V(9.957617, -1.144955, 0), V(9.821123, -1.215008, 0), V(9.68602, -1.276498, 0), V(9.552788, -1.33059, 0), V(9.422091, -1.378697, 0), V(9.29178, -1.418651, 0), V(9.16065, -1.453639, 0), V(9.025791, -1.482736, 0), V(8.886702, -1.508092, 0), V(8.742821, -1.528248, 0), V(8.594835, -1.544491, 0), V(8.442108, -1.555357, 0), V(8.285005, -1.562813, 0), V(8.178603, -1.563449, 0), V(8.124607, -1.563771, 0)], [4, 1, 1, 1, 1, 1, 1, 1, 1, 1, 1, 1, 1, 1, 1, 1, 4], [0, 1.133034675, 2.225512122, 3.28425737, 4.310857163, 5.306587224, 6.264611791, 7.198679476, 8.102922904, 9.001310792, 9.923925246, 10.873250138, 11.8405114, 12.841538757, 13.862963098, 14.915529496, 16], False, 3, [1, 1, 1, 1, 1, 1, 1, 1, 1, 1, 1, 1, 1, 1, 1, 1, 1, 1, 1], False), False)
sketch2.addGeometry(Part.LineSegment(V(10.378013, -0.895602, 0), V(9.708441, -0.426552, 0)), False)
sketch2.addGeometry(Part.BSplineCurve([V(8.140032, -0.935566, 0), V(8.210193, -0.934209, 0), V(8.347778, -0.931547, 0), V(8.549599, -0.910981, 0), V(8.74204, -0.876825, 0), V(8.896692, -0.836529, 0), V(9.017905, -0.796678, 0), V(9.109809, -0.759356, 0), V(9.204561, -0.718367, 0), V(9.301264, -0.671094, 0), V(9.400423, -0.618656, 0), V(9.501033, -0.559116, 0), V(9.604956, -0.495997, 0), V(9.673559, -0.44996, 0), V(9.708441, -0.426552, 0)], [4, 1, 1, 1, 1, 1, 1, 1, 1, 1, 1, 1, 4], [0, 1.505063555, 2.951436218, 4.347093681, 5.694607453, 6.37641358, 7.083116245, 7.821840473, 8.591025978, 9.391806723, 10.22770291, 11.098843068, 12], False, 3, [1, 1, 1, 1, 1, 1, 1, 1, 1, 1, 1, 1, 1, 1, 1], False), False)
sketch2.addGeometry(Part.BSplineCurve([V(6.360585, 0.282983, 0), V(6.361235, 0.253737, 0), V(6.36252, 0.195986, 0), V(6.373451, 0.110613, 0), V(6.390804, 0.027766, 0), V(6.415495, -0.052469, 0), V(6.447118, -0.130294, 0), V(6.486881, -0.205157, 0), V(6.532313, -0.278379, 0), V(6.584985, -0.348627, 0), V(6.644825, -0.414971, 0), V(6.710186, -0.478217, 0), V(6.781287, -0.538117, 0), V(6.858302, -0.593842, 0), V(6.941037, -0.646359, 0), V(7.029929, -0.694105, 0), V(7.124326, -0.739326, 0), V(7.223967, -0.780495, 0), V(7.328558, -0.816572, 0), V(7.436002, -0.849019, 0), V(7.546551, -0.875582, 0), V(7.659846, -0.897115, 0), V(7.775768, -0.915043, 0), V(7.894941, -0.926343, 0), V(8.016513, -0.934777, 0), V(8.09865, -0.935302, 0), V(8.140032, -0.935566, 0)], [4, 1, 1, 1, 1, 1, 1, 1, 1, 1, 1, 1, 1, 1, 1, 1, 1, 1, 1, 1, 1, 1, 1, 1, 4], [0, 0.878315556, 1.734348478, 2.581205271, 3.418461663, 4.252887286, 5.100791162, 5.961847879, 6.839461624, 7.734455547, 8.643087164, 9.569900467, 10.524847464, 11.496806173, 12.511564499, 13.554163719, 14.640251063, 15.748243195, 16.876667468, 18.010778071, 19.161907593, 20.340521615, 21.533043374, 22.757120452, 24], False, 3, [1, 1, 1, 1, 1, 1, 1, 1, 1, 1, 1, 1, 1, 1, 1, 1, 1, 1, 1, 1, 1, 1, 1, 1, 1, 1, 1], False), False)
sketch2.addGeometry(Part.BSplineCurve([V(8.122504, 1.487511, 0), V(8.061706, 1.486409, 0), V(7.942462, 1.484249, 0), V(7.767198, 1.467991, 0), V(7.599295, 1.440563, 0), V(7.43832, 1.403167, 0), V(7.284951, 1.353633, 0), V(7.138544, 1.294388, 0), V(6.999986, 1.222982, 0), V(6.869909, 1.14258, 0), V(6.751103, 1.054268, 0), V(6.64668, 0.959908, 0), V(6.558858, 0.859508, 0), V(6.486606, 0.754443, 0), V(6.429509, 0.644187, 0), V(6.389555, 0.528242, 0), V(6.36471, 0.407206, 0), V(6.36197, 0.324702, 0), V(6.360585, 0.282983, 0)], [4, 1, 1, 1, 1, 1, 1, 1, 1, 1, 1, 1, 1, 1, 1, 1, 4], [0, 1.236486871, 2.42513932, 3.576244643, 4.694644103, 5.783012074, 6.851105052, 7.903437657, 8.949470909, 9.958158844, 10.910384425, 11.806511063, 12.66483807, 13.498201328, 14.323513631, 15.152268394, 16], False, 3, [1, 1, 1, 1, 1, 1, 1, 1, 1, 1, 1, 1, 1, 1, 1, 1, 1, 1, 1], False), False)
sketch2.addGeometry(Part.BSplineCurve([V(9.708441, 0.978496, 0), V(9.649443, 1.019155, 0), V(9.53235, 1.099851, 0), V(9.347368, 1.203733, 0), V(9.156319, 1.290555, 0), V(8.960569, 1.363674, 0), V(8.758574, 1.418591, 0), V(8.551487, 1.458866, 0), V(8.338804, 1.483285, 0), V(8.195017, 1.486094, 0), V(8.122504, 1.487511, 0)], [4, 1, 1, 1, 1, 1, 1, 1, 4], [0, 1.014837834, 2.014149296, 3.001006005, 3.985821711, 4.971527747, 5.963194959, 6.972833183, 8], False, 3, [1, 1, 1, 1, 1, 1, 1, 1, 1, 1, 1], False), False)
sketch2.addConstraint(Sketcher.Constraint("Block", 2))
sketch2.addConstraint(Sketcher.Constraint("Block", 3))
sketch2.addConstraint(Sketcher.Constraint("Block", 7))
sketch2.addConstraint(Sketcher.Constraint("Block", 8))
sketch2.addConstraint(Sketcher.Constraint("Block", 12))
sketch2.addConstraint(Sketcher.Constraint("Block", 13))
sketch2.addConstraint(Sketcher.Constraint("Block", 14))
sketch2.addConstraint(Sketcher.Constraint("Block", 15))
sketch2.addConstraint(Sketcher.Constraint("Block", 16))
sketch2.addConstraint(Sketcher.Constraint("Block", 19))
sketch2.addConstraint(Sketcher.Constraint("Block", 20))
sketch2.addConstraint(Sketcher.Constraint("Block", 24))
sketch2.addConstraint(Sketcher.Constraint("Block", 25))
sketch2.addConstraint(Sketcher.Constraint("Block", 41))
sketch2.addConstraint(Sketcher.Constraint("Block", 42))
sketch2.addConstraint(Sketcher.Constraint("Block", 43))
sketch2.addConstraint(Sketcher.Constraint("Block", 44))
sketch2.addConstraint(Sketcher.Constraint("Block", 46))
sketch2.addConstraint(Sketcher.Constraint("Block", 47))
sketch2.addConstraint(Sketcher.Constraint("Block", 48))
sketch2.addConstraint(Sketcher.Constraint("Block", 49))
sketch2.addConstraint(Sketcher.Constraint("Coincident", 0, 2, 1, 1))
sketch2.addConstraint(Sketcher.Constraint("Coincident", 1, 2, 2, 2))
sketch2.addConstraint(Sketcher.Constraint("Coincident", 3, 1, 4, 1))
sketch2.addConstraint(Sketcher.Constraint("Coincident", 4, 2, 5, 1))
sketch2.addConstraint(Sketcher.Constraint("Coincident", 5, 2, 6, 1))
sketch2.addConstraint(Sketcher.Constraint("Coincident", 6, 2, 7, 2))
sketch2.addConstraint(Sketcher.Constraint("Coincident", 8, 1, 9, 1))
sketch2.addConstraint(Sketcher.Constraint("Coincident", 9, 2, 0, 1))
sketch2.addConstraint(Sketcher.Constraint("Coincident", 10, 2, 11, 1))
sketch2.addConstraint(Sketcher.Constraint("Coincident", 11, 2, 12, 2))
sketch2.addConstraint(Sketcher.Constraint("Coincident", 16, 1, 17, 1))
sketch2.addConstraint(Sketcher.Constraint("Coincident", 17, 2, 10, 1))
sketch2.addConstraint(Sketcher.Constraint("Coincident", 18, 2, 19, 2))
sketch2.addConstraint(Sketcher.Constraint("Coincident", 20, 1, 21, 1))
sketch2.addConstraint(Sketcher.Constraint("Coincident", 21, 2, 22, 1))
sketch2.addConstraint(Sketcher.Constraint("Coincident", 22, 2, 18, 1))
sketch2.addConstraint(Sketcher.Constraint("Coincident", 23, 2, 24, 2))
sketch2.addConstraint(Sketcher.Constraint("Coincident", 25, 1, 26, 1))
sketch2.addConstraint(Sketcher.Constraint("Coincident", 26, 2, 27, 1))
sketch2.addConstraint(Sketcher.Constraint("Coincident", 27, 2, 23, 1))
sketch2.addConstraint(Sketcher.Constraint("Coincident", 40, 2, 41, 2))
sketch2.addConstraint(Sketcher.Constraint("Coincident", 44, 1, 45, 1))
sketch2.addConstraint(Sketcher.Constraint("Coincident", 45, 2, 46, 2))
sketch2.addConstraint(Sketcher.Constraint("Coincident", 49, 1, 40, 1))
sketch2.addConstraint(Sketcher.Constraint("Horizontal", 0))
sketch2.addConstraint(Sketcher.Constraint("Vertical", 1))
sketch2.addConstraint(Sketcher.Constraint("Vertical", 4))
sketch2.addConstraint(Sketcher.Constraint("Horizontal", 5))
sketch2.addConstraint(Sketcher.Constraint("Vertical", 6))
sketch2.addConstraint(Sketcher.Constraint("Vertical", 9))
sketch2.addConstraint(Sketcher.Constraint("Vertical", 10))
sketch2.addConstraint(Sketcher.Constraint("Horizontal", 11))
sketch2.addConstraint(Sketcher.Constraint("Horizontal", 17))
sketch2.addConstraint(Sketcher.Constraint("Horizontal", 18))
sketch2.addConstraint(Sketcher.Constraint("Horizontal", 21))
sketch2.addConstraint(Sketcher.Constraint("Vertical", 22))
sketch2.addConstraint(Sketcher.Constraint("Horizontal", 23))
sketch2.addConstraint(Sketcher.Constraint("Horizontal", 26))
sketch2.addConstraint(Sketcher.Constraint("Vertical", 27))
sketch2.addConstraint(Sketcher.Constraint("Horizontal", 28))
sketch2.addConstraint(Sketcher.Constraint("Vertical", 29))
sketch2.addConstraint(Sketcher.Constraint("Horizontal", 30))
sketch2.addConstraint(Sketcher.Constraint("Vertical", 31))
sketch2.addConstraint(Sketcher.Constraint("Horizontal", 32))
sketch2.addConstraint(Sketcher.Constraint("Vertical", 33))
sketch2.addConstraint(Sketcher.Constraint("Horizontal", 34))
sketch2.addConstraint(Sketcher.Constraint("Vertical", 35))
sketch2.addConstraint(Sketcher.Constraint("Horizontal", 36))
sketch2.addConstraint(Sketcher.Constraint("Vertical", 37))
sketch2.addConstraint(Sketcher.Constraint("Horizontal", 38))
sketch2.addConstraint(Sketcher.Constraint("Vertical", 39))
sketch2.addConstraint(Sketcher.Constraint("DistanceY", 29, 2, 29, 1, Q("3.5 mm")))
sketch2.addConstraint(Sketcher.Constraint("DistanceY", 10, 2, 4, 2, Q("3.5 mm")))
sketch2.addConstraint(Sketcher.Constraint("DistanceY", 10, 2, 9, 2, Q("3.5 mm")))
sketch2.addConstraint(Sketcher.Constraint("DistanceX", 10, 2, 18, 2, Q("1.186999 mm")))
sketch2.addConstraint(Sketcher.Constraint("DistanceX", 18, 1, 18, 2, Q("0.19982 mm")))
sketch2.addConstraint(Sketcher.Constraint("DistanceX", 23, 1, 23, 2, Q("0.246795 mm")))
sketch2.addConstraint(Sketcher.Constraint("DistanceX", 28, 2, 28, 1, Q("2.826923 mm")))
sketch2.addConstraint(Sketcher.Constraint("DistanceX", 30, 1, 30, 2, Q("2.826923 mm")))
sketch2.addConstraint(Sketcher.Constraint("DistanceX", 32, 2, 32, 1, Q("1.839744 mm")))
sketch2.addConstraint(Sketcher.Constraint("DistanceX", 34, 1, 34, 2, Q("1.839744 mm")))
sketch2.addConstraint(Sketcher.Constraint("DistanceX", 36, 2, 36, 1, Q("1.839744 mm")))
sketch2.addConstraint(Sketcher.Constraint("DistanceY", 31, 1, 31, 2, Q("0.628205 mm")))
sketch2.addConstraint(Sketcher.Constraint("DistanceY", 33, 1, 33, 2, Q("0.942308 mm")))
sketch2.addConstraint(Sketcher.Constraint("DistanceY", 35, 1, 35, 2, Q("0.628205 mm")))
sketch2.addConstraint(Sketcher.Constraint("DistanceY", 37, 1, 37, 2, Q("0.673077 mm")))
sketch2.addConstraint(Sketcher.Constraint("DistanceX", -1, 1, 30, 2, Q("3.77597 mm")))
sketch2.addConstraint(Sketcher.Constraint("DistanceY", -1, 1, 35, 2, Q("0.72469 mm")))
sketch2.setExpression("Constraints[84]", "Params.sketch2_height")
pocket1 = doc.addObject("PartDesign::Pocket", "Pocket")
body.addObject(pocket1)
pocket1.Profile = sketch2
pocket1.setExpression("Length", "Params.pocket1_length")

doc.recompute()
